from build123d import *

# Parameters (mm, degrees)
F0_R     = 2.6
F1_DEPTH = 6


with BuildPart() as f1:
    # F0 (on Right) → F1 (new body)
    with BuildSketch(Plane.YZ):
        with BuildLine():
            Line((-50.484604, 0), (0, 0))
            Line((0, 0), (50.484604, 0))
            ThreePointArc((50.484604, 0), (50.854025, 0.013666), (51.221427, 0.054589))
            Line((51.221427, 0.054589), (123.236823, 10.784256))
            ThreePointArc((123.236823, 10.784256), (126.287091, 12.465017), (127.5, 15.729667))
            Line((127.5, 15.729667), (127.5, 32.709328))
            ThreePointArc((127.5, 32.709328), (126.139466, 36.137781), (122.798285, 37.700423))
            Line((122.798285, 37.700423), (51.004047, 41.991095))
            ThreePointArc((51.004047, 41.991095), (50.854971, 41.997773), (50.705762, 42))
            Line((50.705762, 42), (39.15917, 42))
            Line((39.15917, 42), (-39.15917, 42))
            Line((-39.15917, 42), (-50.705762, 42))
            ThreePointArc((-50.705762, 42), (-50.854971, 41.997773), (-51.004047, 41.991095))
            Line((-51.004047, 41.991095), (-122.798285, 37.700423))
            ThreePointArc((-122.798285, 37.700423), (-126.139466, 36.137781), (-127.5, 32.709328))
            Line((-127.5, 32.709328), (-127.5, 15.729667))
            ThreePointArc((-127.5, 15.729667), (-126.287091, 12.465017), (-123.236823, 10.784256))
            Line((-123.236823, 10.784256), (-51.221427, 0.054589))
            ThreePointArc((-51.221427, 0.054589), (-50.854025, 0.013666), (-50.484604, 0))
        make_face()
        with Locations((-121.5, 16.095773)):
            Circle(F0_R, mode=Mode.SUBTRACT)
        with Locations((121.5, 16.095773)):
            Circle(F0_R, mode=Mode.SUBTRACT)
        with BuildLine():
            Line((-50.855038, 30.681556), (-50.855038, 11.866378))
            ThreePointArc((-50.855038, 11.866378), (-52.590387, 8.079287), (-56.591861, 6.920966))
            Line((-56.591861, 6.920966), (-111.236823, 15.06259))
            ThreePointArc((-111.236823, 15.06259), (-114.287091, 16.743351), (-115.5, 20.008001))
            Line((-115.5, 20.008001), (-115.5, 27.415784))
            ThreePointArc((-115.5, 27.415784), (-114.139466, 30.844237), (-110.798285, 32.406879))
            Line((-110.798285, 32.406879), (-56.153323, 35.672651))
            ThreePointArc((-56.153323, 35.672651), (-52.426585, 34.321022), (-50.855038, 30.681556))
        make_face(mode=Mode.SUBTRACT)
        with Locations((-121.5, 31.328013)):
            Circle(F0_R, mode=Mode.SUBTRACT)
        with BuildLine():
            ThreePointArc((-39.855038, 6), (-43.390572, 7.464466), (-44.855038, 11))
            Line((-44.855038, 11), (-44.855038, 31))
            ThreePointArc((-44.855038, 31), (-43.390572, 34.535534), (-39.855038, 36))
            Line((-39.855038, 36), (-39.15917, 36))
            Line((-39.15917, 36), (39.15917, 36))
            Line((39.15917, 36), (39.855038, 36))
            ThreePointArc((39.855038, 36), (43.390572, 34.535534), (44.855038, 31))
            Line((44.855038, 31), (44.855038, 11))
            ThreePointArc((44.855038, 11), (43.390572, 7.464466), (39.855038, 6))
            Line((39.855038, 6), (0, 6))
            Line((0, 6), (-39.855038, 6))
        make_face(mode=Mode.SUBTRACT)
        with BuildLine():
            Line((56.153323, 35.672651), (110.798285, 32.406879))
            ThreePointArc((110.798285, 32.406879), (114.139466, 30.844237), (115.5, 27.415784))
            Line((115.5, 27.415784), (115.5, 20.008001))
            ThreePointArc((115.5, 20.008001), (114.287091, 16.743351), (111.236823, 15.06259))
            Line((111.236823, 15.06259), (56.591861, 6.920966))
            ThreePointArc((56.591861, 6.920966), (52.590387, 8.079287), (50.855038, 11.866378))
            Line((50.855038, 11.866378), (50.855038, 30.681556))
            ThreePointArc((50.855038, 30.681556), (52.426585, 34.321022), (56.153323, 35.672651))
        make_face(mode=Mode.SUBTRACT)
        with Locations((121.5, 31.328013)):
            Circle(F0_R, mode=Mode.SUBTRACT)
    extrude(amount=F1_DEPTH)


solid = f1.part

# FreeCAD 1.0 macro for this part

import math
import FreeCAD as App
import Part
import Sketcher
Q = App.Units.Quantity

doc = App.newDocument("Part")
body = doc.addObject("PartDesign::Body", "Body")

# Sketch on YZ plane
sketch1 = doc.addObject("Sketcher::SketchObject", "Sketch")
body.addObject(sketch1)
sketch1.AttachmentSupport = (doc.YZ_Plane, [""])
sketch1.MapMode = "FlatFace"
sketch1.addGeometry([
    Part.LineSegment(App.Vector(-50.48, 0, 0), App.Vector(50.48, 0, 0)),  # 0
    Part.ArcOfCircle(Part.Circle(App.Vector(50.48, 5, 0), App.Vector(0, 0, 1), 5), math.radians(-90), math.radians(-81.53)),  # 1
    Part.LineSegment(App.Vector(51.22, 0.05, 0), App.Vector(123.24, 10.78, 0)),  # 2
    Part.ArcOfCircle(Part.Circle(App.Vector(122.5, 15.73, 0), App.Vector(0, 0, 1), 5), math.radians(-82), math.radians(0)),  # 3
    Part.LineSegment(App.Vector(127.5, 15.73, 0), App.Vector(127.5, 32.71, 0)),  # 4
    Part.ArcOfCircle(Part.Circle(App.Vector(122.5, 32.71, 0), App.Vector(0, 0, 1), 5), math.radians(0), math.radians(87)),  # 5
    Part.LineSegment(App.Vector(122.8, 37.7, 0), App.Vector(51, 41.99, 0)),  # 6
    Part.ArcOfCircle(Part.Circle(App.Vector(50.71, 37, 0), App.Vector(0, 0, 1), 5), math.radians(86.58), math.radians(90)),  # 7
    Part.LineSegment(App.Vector(50.71, 42, 0), App.Vector(-50.71, 42, 0)),  # 8
    Part.ArcOfCircle(Part.Circle(App.Vector(-50.71, 37, 0), App.Vector(0, 0, 1), 5), math.radians(90), math.radians(93.42)),  # 9
    Part.LineSegment(App.Vector(-51, 41.99, 0), App.Vector(-122.8, 37.7, 0)),  # 10
    Part.ArcOfCircle(Part.Circle(App.Vector(-122.5, 32.71, 0), App.Vector(0, 0, 1), 5), math.radians(93), math.radians(180)),  # 11
    Part.LineSegment(App.Vector(-127.5, 32.71, 0), App.Vector(-127.5, 15.73, 0)),  # 12
    Part.ArcOfCircle(Part.Circle(App.Vector(-122.5, 15.73, 0), App.Vector(0, 0, 1), 5), math.radians(-180), math.radians(-98)),  # 13
    Part.LineSegment(App.Vector(-123.24, 10.78, 0), App.Vector(-51.22, 0.05, 0)),  # 14
    Part.ArcOfCircle(Part.Circle(App.Vector(-50.48, 5, 0), App.Vector(0, 0, 1), 5), math.radians(-98.47), math.radians(-90)),  # 15
    Part.Circle(App.Vector(-121.5, 16.1, 0), App.Vector(0, 0, 1), 2.6),  # 16
    Part.Circle(App.Vector(121.5, 16.1, 0), App.Vector(0, 0, 1), 2.6),  # 17
    Part.ArcOfCircle(Part.Circle(App.Vector(-55.86, 30.68, 0), App.Vector(0, 0, 1), 5), math.radians(0), math.radians(93)),  # 18
    Part.LineSegment(App.Vector(-50.86, 30.68, 0), App.Vector(-50.86, 11.87, 0)),  # 19
    Part.ArcOfCircle(Part.Circle(App.Vector(-55.86, 11.87, 0), App.Vector(0, 0, 1), 5), math.radians(-98), math.radians(0)),  # 20
    Part.LineSegment(App.Vector(-56.59, 6.92, 0), App.Vector(-111.24, 15.06, 0)),  # 21
    Part.ArcOfCircle(Part.Circle(App.Vector(-110.5, 20.01, 0), App.Vector(0, 0, 1), 5), math.radians(-180), math.radians(-98)),  # 22
    Part.LineSegment(App.Vector(-115.5, 20.01, 0), App.Vector(-115.5, 27.42, 0)),  # 23
    Part.ArcOfCircle(Part.Circle(App.Vector(-110.5, 27.42, 0), App.Vector(0, 0, 1), 5), math.radians(93), math.radians(180)),  # 24
    Part.LineSegment(App.Vector(-110.8, 32.41, 0), App.Vector(-56.15, 35.67, 0)),  # 25
    Part.Circle(App.Vector(-121.5, 31.33, 0), App.Vector(0, 0, 1), 2.6),  # 26
    Part.LineSegment(App.Vector(39.86, 6, 0), App.Vector(-39.86, 6, 0)),  # 27
    Part.ArcOfCircle(Part.Circle(App.Vector(-39.86, 11, 0), App.Vector(0, 0, 1), 5), math.radians(180), math.radians(270)),  # 28
    Part.LineSegment(App.Vector(-44.86, 11, 0), App.Vector(-44.86, 31, 0)),  # 29
    Part.ArcOfCircle(Part.Circle(App.Vector(-39.86, 31, 0), App.Vector(0, 0, 1), 5), math.radians(90), math.radians(180)),  # 30
    Part.LineSegment(App.Vector(-39.86, 36, 0), App.Vector(39.86, 36, 0)),  # 31
    Part.ArcOfCircle(Part.Circle(App.Vector(39.86, 31, 0), App.Vector(0, 0, 1), 5), math.radians(0), math.radians(90)),  # 32
    Part.LineSegment(App.Vector(44.86, 31, 0), App.Vector(44.86, 11, 0)),  # 33
    Part.ArcOfCircle(Part.Circle(App.Vector(39.86, 11, 0), App.Vector(0, 0, 1), 5), math.radians(-90), math.radians(0)),  # 34
    Part.ArcOfCircle(Part.Circle(App.Vector(55.86, 30.68, 0), App.Vector(0, 0, 1), 5), math.radians(87), math.radians(180)),  # 35
    Part.LineSegment(App.Vector(56.15, 35.67, 0), App.Vector(110.8, 32.41, 0)),  # 36
    Part.ArcOfCircle(Part.Circle(App.Vector(110.5, 27.42, 0), App.Vector(0, 0, 1), 5), math.radians(0), math.radians(87)),  # 37
    Part.LineSegment(App.Vector(115.5, 27.42, 0), App.Vector(115.5, 20.01, 0)),  # 38
    Part.ArcOfCircle(Part.Circle(App.Vector(110.5, 20.01, 0), App.Vector(0, 0, 1), 5), math.radians(-82), math.radians(0)),  # 39
    Part.LineSegment(App.Vector(111.24, 15.06, 0), App.Vector(56.59, 6.92, 0)),  # 40
    Part.ArcOfCircle(Part.Circle(App.Vector(55.86, 11.87, 0), App.Vector(0, 0, 1), 5), math.radians(180), math.radians(278)),  # 41
    Part.LineSegment(App.Vector(50.86, 11.87, 0), App.Vector(50.86, 30.68, 0)),  # 42
    Part.Circle(App.Vector(121.5, 31.33, 0), App.Vector(0, 0, 1), 2.6),  # 43
], False)
sketch1.addConstraint([
    Sketcher.Constraint("Tangent", 0, 2, 1, 1),
    Sketcher.Constraint("Tangent", 1, 2, 2, 1),
    Sketcher.Constraint("Tangent", 2, 2, 3, 1),
    Sketcher.Constraint("Tangent", 3, 2, 4, 1),
    Sketcher.Constraint("Tangent", 4, 2, 5, 1),
    Sketcher.Constraint("Tangent", 5, 2, 6, 1),
    Sketcher.Constraint("Coincident", 6, 2, 7, 1),
    Sketcher.Constraint("Coincident", 7, 2, 8, 1),
    Sketcher.Constraint("Coincident", 8, 2, 9, 1),
    Sketcher.Constraint("Coincident", 9, 2, 10, 1),
    Sketcher.Constraint("Tangent", 10, 2, 11, 1),
    Sketcher.Constraint("Tangent", 11, 2, 12, 1),
    Sketcher.Constraint("Tangent", 12, 2, 13, 1),
    Sketcher.Constraint("Tangent", 13, 2, 14, 1),
    Sketcher.Constraint("Tangent", 14, 2, 15, 1),
    Sketcher.Constraint("Tangent", 15, 2, 0, 1),
    Sketcher.Constraint("Tangent", 18, 1, 19, 1),
    Sketcher.Constraint("Tangent", 19, 2, 20, 2),
    Sketcher.Constraint("Tangent", 20, 1, 21, 1),
    Sketcher.Constraint("Tangent", 21, 2, 22, 2),
    Sketcher.Constraint("Tangent", 22, 1, 23, 1),
    Sketcher.Constraint("Tangent", 23, 2, 24, 2),
    Sketcher.Constraint("Tangent", 24, 1, 25, 1),
    Sketcher.Constraint("Tangent", 25, 2, 18, 2),
    Sketcher.Constraint("Tangent", 27, 2, 28, 2),
    Sketcher.Constraint("Tangent", 28, 1, 29, 1),
    Sketcher.Constraint("Tangent", 29, 2, 30, 2),
    Sketcher.Constraint("Tangent", 30, 1, 31, 1),
    Sketcher.Constraint("Tangent", 31, 2, 32, 2),
    Sketcher.Constraint("Tangent", 32, 1, 33, 1),
    Sketcher.Constraint("Tangent", 33, 2, 34, 2),
    Sketcher.Constraint("Tangent", 34, 1, 27, 1),
    Sketcher.Constraint("Tangent", 35, 1, 36, 1),
    Sketcher.Constraint("Tangent", 36, 2, 37, 2),
    Sketcher.Constraint("Tangent", 37, 1, 38, 1),
    Sketcher.Constraint("Tangent", 38, 2, 39, 2),
    Sketcher.Constraint("Tangent", 39, 1, 40, 1),
    Sketcher.Constraint("Tangent", 40, 2, 41, 2),
    Sketcher.Constraint("Tangent", 41, 1, 42, 1),
    Sketcher.Constraint("Tangent", 42, 2, 35, 2),
    Sketcher.Constraint("Horizontal", 0),
    Sketcher.Constraint("Vertical", 4),
    Sketcher.Constraint("Horizontal", 8),
    Sketcher.Constraint("Vertical", 12),
    Sketcher.Constraint("Vertical", 19),
    Sketcher.Constraint("Vertical", 23),
    Sketcher.Constraint("Horizontal", 27),
    Sketcher.Constraint("Vertical", 29),
    Sketcher.Constraint("Horizontal", 31),
    Sketcher.Constraint("Vertical", 33),
    Sketcher.Constraint("Vertical", 38),
    Sketcher.Constraint("Vertical", 42),
    Sketcher.Constraint("Equal", 3, 5),
    Sketcher.Constraint("Equal", 7, 9),
    Sketcher.Constraint("Equal", 5, 11),
    Sketcher.Constraint("Equal", 11, 13),
    Sketcher.Constraint("Equal", 1, 15),
    Sketcher.Constraint("Equal", 16, 17),
    Sketcher.Constraint("Equal", 13, 18),
    Sketcher.Constraint("Equal", 18, 20),
    Sketcher.Constraint("Equal", 20, 22),
    Sketcher.Constraint("Equal", 22, 24),
    Sketcher.Constraint("Equal", 17, 26),
    Sketcher.Constraint("Equal", 24, 28),
    Sketcher.Constraint("Equal", 28, 30),
    Sketcher.Constraint("Equal", 30, 32),
    Sketcher.Constraint("Equal", 32, 34),
    Sketcher.Constraint("Equal", 34, 35),
    Sketcher.Constraint("Equal", 35, 37),
    Sketcher.Constraint("Equal", 37, 39),
    Sketcher.Constraint("Equal", 39, 41),
    Sketcher.Constraint("Equal", 26, 43),
    Sketcher.Constraint("Symmetric", 0, 2, 15, 2, -1, 1),
    Sketcher.Constraint("Symmetric", 5, 3, 11, 3, -2),
    Sketcher.Constraint("Symmetric", 16, 3, 17, 3, -2),
    Sketcher.Constraint("Symmetric", 18, 3, 35, 3, -2),
    Sketcher.Constraint("Symmetric", 24, 3, 37, 3, -2),
    Sketcher.Constraint("Symmetric", 26, 3, 43, 3, -2),
    Sketcher.Constraint("Symmetric", 6, 2, 9, 2, -2),
    Sketcher.Constraint("Symmetric", 21, 2, 39, 1, -2),
    Sketcher.Constraint("Parallel", 14, 21),
    Sketcher.Constraint("Parallel", 10, 25),
    Sketcher.Constraint("Parallel", 2, 40),
    Sketcher.Constraint("Vertical", 16, 3, 26, 3),
    Sketcher.Constraint("Radius", 3, Q("5 mm")),
    Sketcher.Constraint("Diameter", 16, Q("5.2 mm")),
    Sketcher.Constraint("DistanceY", 29, 1, 29, 2, Q("20 mm")),
    Sketcher.Constraint("DistanceY", -1, 1, 28, 3, Q("11 mm")),
    Sketcher.Constraint("DistanceY", -1, 1, 7, 2, Q("42 mm")),
    Sketcher.Constraint("DistanceX", -1, 1, 3, 3, Q("122.5 mm")),
    Sketcher.Constraint("DistanceX", 16, 3, -1, 1, Q("121.5 mm")),
    Sketcher.Constraint("DistanceX", 22, 3, -1, 1, Q("110.5 mm")),
    Sketcher.Constraint("Radius", 7, Q("5.000749 mm")),
    Sketcher.Constraint("DistanceY", -1, 1, 22, 3, Q("20.008001 mm")),
    Sketcher.Constraint("Radius", 1, Q("5.000015 mm")),
    Sketcher.Constraint("DistanceY", 4, 1, 4, 2, Q("16.979661 mm")),
    Sketcher.Constraint("DistanceY", 19, 2, 19, 1, Q("18.815178 mm")),
    Sketcher.Constraint("DistanceX", -1, 1, 1, 3, Q("50.484602 mm")),
    Sketcher.Constraint("Distance", 21, Q("55.248149 mm")),
    Sketcher.Constraint("Distance", 25, Q("54.742462 mm")),
    Sketcher.Constraint("DistanceX", 8, 2, 8, 1, Q("101.411524 mm")),
    Sketcher.Constraint("DistanceX", 27, 2, 27, 1, Q("79.710076 mm")),
    Sketcher.Constraint("DistanceY", 23, 1, 23, 2, Q("7.407783 mm")),
    Sketcher.Constraint("DistanceX", 28, 3, -1, 1, Q("39.855038 mm")),
    Sketcher.Constraint("Distance", 6, Q("71.922336 mm")),
    Sketcher.Constraint("DistanceY", -1, 1, 16, 3, Q("16.095773 mm")),
    Sketcher.Constraint("DistanceY", -1, 1, 26, 3, Q("31.328013 mm")),
    Sketcher.Constraint("DistanceX", -1, 1, 7, 2, Q("50.705762 mm")),
])
pad1 = doc.addObject("PartDesign::Pad", "Pad")
body.addObject(pad1)
pad1.Profile = sketch1
pad1.Length = 6

doc.recompute()
